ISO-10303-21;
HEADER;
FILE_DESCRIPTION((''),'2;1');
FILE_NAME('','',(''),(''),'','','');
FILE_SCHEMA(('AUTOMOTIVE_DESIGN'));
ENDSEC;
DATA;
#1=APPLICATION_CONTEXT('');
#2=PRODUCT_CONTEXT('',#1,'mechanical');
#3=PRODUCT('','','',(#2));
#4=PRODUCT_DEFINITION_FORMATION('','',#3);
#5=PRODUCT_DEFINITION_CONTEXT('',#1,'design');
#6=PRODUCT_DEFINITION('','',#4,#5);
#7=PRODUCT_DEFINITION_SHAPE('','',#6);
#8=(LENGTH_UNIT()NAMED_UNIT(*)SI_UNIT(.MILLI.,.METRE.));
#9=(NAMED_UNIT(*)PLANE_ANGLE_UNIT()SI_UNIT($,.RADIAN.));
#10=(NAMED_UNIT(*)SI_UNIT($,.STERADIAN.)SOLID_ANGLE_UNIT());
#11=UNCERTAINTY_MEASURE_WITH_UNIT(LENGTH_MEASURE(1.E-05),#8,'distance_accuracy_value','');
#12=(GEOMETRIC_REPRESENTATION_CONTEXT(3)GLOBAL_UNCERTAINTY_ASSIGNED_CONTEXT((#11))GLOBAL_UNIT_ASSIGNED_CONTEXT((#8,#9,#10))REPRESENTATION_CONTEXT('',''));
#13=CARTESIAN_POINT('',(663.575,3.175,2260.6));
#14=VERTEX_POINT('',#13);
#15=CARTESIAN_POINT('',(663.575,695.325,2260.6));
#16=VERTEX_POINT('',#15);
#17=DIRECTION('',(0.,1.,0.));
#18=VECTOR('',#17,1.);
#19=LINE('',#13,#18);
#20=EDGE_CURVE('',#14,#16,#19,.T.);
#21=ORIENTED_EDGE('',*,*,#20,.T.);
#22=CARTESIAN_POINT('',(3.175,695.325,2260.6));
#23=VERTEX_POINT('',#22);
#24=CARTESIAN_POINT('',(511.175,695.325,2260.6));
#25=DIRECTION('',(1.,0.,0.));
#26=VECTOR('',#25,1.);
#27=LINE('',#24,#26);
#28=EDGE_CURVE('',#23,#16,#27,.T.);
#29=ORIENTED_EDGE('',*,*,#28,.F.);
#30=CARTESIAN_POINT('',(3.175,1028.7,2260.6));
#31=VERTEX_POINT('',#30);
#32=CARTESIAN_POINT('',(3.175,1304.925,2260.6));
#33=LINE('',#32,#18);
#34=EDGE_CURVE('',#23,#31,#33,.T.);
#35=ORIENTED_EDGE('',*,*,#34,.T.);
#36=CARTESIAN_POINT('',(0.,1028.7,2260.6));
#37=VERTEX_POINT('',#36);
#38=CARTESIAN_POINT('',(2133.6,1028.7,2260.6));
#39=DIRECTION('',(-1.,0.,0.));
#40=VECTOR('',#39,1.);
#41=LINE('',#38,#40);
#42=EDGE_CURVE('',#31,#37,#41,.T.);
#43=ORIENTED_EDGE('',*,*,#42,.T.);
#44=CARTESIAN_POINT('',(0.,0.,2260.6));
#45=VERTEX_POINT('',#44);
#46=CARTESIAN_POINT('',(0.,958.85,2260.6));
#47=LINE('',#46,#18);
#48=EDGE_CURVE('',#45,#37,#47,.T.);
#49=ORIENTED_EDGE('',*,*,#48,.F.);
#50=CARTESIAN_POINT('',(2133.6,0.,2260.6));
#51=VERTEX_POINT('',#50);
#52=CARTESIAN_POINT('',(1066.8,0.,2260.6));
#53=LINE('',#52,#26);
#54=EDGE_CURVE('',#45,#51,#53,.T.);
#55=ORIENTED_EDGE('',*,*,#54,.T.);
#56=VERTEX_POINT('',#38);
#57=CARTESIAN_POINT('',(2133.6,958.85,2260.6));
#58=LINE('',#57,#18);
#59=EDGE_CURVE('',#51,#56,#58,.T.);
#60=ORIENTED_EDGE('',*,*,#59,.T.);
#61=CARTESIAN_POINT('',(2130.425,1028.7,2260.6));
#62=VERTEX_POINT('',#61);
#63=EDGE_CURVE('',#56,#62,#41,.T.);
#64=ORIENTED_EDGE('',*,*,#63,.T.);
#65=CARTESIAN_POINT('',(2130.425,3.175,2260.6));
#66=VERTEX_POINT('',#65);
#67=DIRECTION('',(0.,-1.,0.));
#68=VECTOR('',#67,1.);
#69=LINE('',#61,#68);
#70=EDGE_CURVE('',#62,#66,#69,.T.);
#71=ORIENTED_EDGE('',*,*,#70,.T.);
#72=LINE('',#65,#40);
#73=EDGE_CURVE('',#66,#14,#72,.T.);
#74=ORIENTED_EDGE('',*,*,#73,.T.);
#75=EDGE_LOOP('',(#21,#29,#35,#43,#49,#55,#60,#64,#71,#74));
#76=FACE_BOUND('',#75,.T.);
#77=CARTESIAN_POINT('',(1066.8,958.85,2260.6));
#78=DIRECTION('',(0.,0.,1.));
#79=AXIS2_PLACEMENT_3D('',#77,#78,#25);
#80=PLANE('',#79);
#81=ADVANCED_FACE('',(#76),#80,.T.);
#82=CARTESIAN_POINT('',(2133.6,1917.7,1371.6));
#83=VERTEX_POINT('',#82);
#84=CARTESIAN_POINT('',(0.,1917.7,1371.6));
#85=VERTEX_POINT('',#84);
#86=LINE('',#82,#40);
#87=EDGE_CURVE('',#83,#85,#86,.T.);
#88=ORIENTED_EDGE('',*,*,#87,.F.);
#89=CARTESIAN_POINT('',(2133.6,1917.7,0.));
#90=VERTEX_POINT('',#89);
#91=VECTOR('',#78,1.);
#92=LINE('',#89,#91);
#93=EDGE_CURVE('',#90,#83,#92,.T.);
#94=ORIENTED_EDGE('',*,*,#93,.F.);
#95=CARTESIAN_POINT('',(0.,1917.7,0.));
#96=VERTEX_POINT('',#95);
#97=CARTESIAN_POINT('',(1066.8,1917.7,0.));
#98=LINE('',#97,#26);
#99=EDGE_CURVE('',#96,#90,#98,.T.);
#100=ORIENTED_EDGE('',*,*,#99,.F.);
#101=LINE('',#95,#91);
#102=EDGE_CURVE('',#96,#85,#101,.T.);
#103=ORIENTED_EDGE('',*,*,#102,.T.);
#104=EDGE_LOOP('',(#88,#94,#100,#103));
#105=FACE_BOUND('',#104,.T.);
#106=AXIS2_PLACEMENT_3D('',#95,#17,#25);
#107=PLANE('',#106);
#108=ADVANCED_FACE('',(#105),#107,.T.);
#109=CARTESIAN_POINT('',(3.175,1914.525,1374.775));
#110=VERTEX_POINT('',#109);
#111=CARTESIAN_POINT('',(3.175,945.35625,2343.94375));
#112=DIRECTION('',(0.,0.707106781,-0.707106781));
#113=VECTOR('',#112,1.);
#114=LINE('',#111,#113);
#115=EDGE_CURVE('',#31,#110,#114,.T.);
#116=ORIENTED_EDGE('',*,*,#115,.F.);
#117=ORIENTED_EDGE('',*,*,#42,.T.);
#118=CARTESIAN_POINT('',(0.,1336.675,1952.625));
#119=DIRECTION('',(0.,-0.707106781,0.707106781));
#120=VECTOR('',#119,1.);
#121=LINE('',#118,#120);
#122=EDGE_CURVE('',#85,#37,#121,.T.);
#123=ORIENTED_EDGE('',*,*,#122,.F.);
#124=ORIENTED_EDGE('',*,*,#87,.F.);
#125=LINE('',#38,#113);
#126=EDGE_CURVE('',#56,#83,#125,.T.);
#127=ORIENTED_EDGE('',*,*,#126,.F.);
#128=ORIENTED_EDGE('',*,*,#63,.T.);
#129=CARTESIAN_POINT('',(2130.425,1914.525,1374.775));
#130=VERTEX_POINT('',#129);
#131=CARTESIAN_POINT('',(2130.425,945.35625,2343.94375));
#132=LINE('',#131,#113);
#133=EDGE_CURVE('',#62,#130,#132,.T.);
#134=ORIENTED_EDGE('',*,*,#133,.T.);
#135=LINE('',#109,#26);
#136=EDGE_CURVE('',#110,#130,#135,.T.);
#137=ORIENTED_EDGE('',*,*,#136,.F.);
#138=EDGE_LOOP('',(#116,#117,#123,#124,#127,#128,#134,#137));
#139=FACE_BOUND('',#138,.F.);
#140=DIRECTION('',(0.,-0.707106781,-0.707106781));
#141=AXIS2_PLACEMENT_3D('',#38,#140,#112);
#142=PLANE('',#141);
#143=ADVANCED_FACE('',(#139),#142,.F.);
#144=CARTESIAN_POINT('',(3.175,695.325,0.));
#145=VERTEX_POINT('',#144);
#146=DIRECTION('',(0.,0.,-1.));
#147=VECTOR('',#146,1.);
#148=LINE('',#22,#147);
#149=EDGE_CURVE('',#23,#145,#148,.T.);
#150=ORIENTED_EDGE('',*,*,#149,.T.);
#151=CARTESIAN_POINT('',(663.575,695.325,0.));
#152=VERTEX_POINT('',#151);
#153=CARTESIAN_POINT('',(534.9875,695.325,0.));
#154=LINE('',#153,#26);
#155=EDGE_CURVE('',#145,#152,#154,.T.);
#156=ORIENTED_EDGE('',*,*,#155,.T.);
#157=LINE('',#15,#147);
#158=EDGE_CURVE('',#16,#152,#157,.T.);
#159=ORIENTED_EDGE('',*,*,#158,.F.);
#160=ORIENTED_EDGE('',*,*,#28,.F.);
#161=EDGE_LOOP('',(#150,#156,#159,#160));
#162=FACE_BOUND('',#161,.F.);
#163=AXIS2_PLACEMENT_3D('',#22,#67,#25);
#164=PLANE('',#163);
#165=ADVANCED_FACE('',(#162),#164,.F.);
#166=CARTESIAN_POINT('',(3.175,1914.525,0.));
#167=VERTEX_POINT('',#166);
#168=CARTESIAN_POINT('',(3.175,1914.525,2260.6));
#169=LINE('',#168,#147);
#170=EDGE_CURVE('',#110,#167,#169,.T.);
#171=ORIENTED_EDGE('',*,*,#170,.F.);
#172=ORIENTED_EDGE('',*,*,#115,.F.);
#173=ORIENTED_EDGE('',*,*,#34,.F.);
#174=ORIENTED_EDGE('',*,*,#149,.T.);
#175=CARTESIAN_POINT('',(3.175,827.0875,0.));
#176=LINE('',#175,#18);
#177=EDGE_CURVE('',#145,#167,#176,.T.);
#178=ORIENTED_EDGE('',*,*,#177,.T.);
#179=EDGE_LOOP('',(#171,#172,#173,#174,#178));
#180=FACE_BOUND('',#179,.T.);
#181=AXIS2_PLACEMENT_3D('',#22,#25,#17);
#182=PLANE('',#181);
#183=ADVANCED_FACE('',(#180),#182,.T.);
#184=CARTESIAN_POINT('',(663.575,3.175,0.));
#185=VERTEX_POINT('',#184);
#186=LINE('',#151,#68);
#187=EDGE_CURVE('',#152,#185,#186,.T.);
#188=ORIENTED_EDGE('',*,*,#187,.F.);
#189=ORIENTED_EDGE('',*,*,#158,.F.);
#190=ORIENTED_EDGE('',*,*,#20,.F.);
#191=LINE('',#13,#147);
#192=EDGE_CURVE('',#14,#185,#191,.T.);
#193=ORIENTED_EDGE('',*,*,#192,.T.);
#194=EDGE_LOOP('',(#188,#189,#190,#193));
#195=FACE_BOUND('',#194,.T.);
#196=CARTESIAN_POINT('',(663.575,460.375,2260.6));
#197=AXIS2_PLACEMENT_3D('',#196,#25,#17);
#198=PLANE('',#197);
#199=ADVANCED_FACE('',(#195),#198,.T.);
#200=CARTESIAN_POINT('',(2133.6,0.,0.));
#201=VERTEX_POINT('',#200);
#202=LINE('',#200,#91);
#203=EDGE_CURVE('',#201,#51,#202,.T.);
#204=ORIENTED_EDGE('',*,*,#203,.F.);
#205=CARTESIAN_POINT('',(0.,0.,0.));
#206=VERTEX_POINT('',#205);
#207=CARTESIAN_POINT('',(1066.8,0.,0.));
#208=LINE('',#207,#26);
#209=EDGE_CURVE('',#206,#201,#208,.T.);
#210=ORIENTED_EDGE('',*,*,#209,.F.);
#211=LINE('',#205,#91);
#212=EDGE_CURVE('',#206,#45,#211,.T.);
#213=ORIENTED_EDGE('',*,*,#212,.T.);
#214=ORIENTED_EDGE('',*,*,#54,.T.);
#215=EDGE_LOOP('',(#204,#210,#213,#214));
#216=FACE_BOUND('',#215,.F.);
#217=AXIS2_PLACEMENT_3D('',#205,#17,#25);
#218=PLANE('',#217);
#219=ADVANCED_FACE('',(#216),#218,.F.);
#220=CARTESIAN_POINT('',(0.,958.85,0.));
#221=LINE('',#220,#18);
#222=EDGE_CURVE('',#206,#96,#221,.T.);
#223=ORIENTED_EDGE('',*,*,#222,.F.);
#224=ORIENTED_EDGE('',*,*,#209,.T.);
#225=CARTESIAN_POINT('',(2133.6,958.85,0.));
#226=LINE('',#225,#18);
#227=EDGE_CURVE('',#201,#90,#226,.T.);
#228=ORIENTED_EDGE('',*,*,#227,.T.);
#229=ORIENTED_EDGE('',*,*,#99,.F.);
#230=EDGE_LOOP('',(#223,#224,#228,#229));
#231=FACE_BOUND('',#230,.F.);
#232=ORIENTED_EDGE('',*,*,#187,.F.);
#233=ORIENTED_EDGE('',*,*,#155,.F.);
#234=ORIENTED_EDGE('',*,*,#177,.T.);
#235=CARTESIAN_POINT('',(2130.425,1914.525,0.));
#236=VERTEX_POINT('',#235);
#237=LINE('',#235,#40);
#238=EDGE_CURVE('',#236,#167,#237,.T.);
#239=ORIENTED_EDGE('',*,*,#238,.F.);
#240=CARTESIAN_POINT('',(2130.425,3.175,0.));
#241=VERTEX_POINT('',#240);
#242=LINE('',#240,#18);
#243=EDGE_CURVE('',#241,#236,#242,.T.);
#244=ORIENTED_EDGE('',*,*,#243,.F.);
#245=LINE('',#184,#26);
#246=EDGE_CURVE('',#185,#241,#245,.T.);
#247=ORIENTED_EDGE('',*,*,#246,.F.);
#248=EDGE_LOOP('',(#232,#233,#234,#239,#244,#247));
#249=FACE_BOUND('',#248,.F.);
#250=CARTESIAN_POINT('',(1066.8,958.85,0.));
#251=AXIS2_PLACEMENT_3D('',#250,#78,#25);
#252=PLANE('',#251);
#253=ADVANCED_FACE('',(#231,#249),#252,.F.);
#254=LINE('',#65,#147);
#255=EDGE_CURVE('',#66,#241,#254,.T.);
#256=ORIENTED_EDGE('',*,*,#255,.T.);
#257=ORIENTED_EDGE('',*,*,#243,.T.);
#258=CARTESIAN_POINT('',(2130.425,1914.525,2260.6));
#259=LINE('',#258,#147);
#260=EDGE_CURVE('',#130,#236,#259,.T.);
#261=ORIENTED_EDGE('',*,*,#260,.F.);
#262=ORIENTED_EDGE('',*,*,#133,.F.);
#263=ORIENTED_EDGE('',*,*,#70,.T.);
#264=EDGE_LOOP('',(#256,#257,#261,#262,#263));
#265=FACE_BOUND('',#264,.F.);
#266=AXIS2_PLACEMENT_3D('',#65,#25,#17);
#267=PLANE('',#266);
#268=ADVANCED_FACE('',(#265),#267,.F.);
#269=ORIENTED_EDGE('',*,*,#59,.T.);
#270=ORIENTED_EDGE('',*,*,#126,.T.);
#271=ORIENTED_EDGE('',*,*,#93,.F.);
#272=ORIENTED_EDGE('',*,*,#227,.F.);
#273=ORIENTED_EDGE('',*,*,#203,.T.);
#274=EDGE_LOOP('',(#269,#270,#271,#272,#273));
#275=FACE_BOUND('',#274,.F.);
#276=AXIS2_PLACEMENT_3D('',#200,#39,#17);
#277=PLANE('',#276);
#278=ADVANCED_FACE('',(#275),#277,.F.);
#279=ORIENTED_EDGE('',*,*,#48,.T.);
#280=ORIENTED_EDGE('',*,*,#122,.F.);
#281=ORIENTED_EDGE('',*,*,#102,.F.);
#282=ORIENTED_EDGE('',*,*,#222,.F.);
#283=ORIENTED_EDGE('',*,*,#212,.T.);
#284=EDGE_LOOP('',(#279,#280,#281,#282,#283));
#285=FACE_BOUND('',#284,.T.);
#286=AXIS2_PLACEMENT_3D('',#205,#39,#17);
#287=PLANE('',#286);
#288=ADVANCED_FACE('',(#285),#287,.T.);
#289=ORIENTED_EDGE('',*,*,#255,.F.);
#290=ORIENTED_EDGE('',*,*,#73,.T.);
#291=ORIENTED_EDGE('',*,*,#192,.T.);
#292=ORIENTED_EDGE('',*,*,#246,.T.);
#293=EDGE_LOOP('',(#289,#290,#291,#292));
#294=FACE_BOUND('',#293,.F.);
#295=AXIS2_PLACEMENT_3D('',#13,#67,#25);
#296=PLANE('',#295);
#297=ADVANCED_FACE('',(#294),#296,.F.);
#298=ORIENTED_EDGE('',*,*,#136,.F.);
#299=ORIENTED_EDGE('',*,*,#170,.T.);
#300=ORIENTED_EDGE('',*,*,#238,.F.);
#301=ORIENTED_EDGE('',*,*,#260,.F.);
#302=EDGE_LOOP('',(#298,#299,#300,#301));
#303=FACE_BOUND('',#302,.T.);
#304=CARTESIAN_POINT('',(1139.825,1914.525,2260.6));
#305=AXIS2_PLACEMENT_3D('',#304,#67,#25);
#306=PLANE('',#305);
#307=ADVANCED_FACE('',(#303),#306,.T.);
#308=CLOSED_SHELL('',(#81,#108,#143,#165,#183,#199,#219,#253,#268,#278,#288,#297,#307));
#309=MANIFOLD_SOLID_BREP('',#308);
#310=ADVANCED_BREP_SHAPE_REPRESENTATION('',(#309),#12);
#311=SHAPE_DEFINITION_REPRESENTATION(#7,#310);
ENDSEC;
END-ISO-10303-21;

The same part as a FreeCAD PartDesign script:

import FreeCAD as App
import Part
import Sketcher
Q = App.Units.Quantity

doc = App.newDocument("Part")
body = doc.addObject("PartDesign::Body", "Body")

# Sketch on XY plane
sketch1 = body.newObject("Sketcher::SketchObject", "Sketch")
sketch1.AttachmentSupport = (doc.getObject("XY_Plane"), [""])
sketch1.MapMode = "FlatFace"
sketch1.addGeometry(Part.LineSegment(App.Vector(0, 1918, 0), App.Vector(0, 0, 0)), False)
sketch1.addGeometry(Part.LineSegment(App.Vector(0, 0, 0), App.Vector(2134, 0, 0)), False)
sketch1.addGeometry(Part.LineSegment(App.Vector(2134, 0, 0), App.Vector(2134, 1918, 0)), False)
sketch1.addGeometry(Part.LineSegment(App.Vector(2134, 1918, 0), App.Vector(0, 1918, 0)), False)
sketch1.addConstraint(Sketcher.Constraint("Coincident", 0, 2, 1, 1))
sketch1.addConstraint(Sketcher.Constraint("Coincident", 1, 2, 2, 1))
sketch1.addConstraint(Sketcher.Constraint("Coincident", 2, 2, 3, 1))
sketch1.addConstraint(Sketcher.Constraint("Coincident", 3, 2, 0, 1))
sketch1.addConstraint(Sketcher.Constraint("Vertical", 0))
sketch1.addConstraint(Sketcher.Constraint("Horizontal", 1))
sketch1.addConstraint(Sketcher.Constraint("Vertical", 2))
sketch1.addConstraint(Sketcher.Constraint("Horizontal", 3))
sketch1.addConstraint(Sketcher.Constraint("Coincident", 0, 2, -1, 1))
sketch1.addConstraint(Sketcher.Constraint("DistanceX", 1, 1, 1, 2, Q("84 in")))
sketch1.addConstraint(Sketcher.Constraint("DistanceY", 0, 2, 0, 1, Q("75.5 in")))
pad1 = body.newObject("PartDesign::Pad", "Pad")
pad1.Profile = sketch1
pad1.Length = Q("89 in")

# Sketch on XY plane
sketch2 = body.newObject("Sketcher::SketchObject", "Sketch001")
sketch2.AttachmentSupport = (doc.getObject("XY_Plane"), [""])
sketch2.MapMode = "FlatFace"
sketch2.AttachmentOffset = App.Placement(App.Vector(0, 0, 89 * 25.4), App.Rotation())
sketch2.addGeometry(Part.LineSegment(App.Vector(1140, 1915, 0), App.Vector(1140, 695, 0)), False)
sketch2.addGeometry(Part.LineSegment(App.Vector(1140, 695, 0), App.Vector(2130, 695, 0)), False)
sketch2.addGeometry(Part.LineSegment(App.Vector(2130, 695, 0), App.Vector(2130, 1915, 0)), False)
sketch2.addGeometry(Part.LineSegment(App.Vector(2130, 1915, 0), App.Vector(1140, 1915, 0)), False)
sketch2.addGeometry(Part.LineSegment(App.Vector(3, 1915, 0), App.Vector(3, 695, 0)), False)
sketch2.addGeometry(Part.LineSegment(App.Vector(3, 695, 0), App.Vector(1019, 695, 0)), False)
sketch2.addGeometry(Part.LineSegment(App.Vector(1019, 695, 0), App.Vector(1019, 1915, 0)), False)
sketch2.addGeometry(Part.LineSegment(App.Vector(1019, 1915, 0), App.Vector(3, 1915, 0)), False)
sketch2.addConstraint(Sketcher.Constraint("Coincident", 0, 2, 1, 1))
sketch2.addConstraint(Sketcher.Constraint("Coincident", 1, 2, 2, 1))
sketch2.addConstraint(Sketcher.Constraint("Coincident", 2, 2, 3, 1))
sketch2.addConstraint(Sketcher.Constraint("Coincident", 3, 2, 0, 1))
sketch2.addConstraint(Sketcher.Constraint("Coincident", 4, 2, 5, 1))
sketch2.addConstraint(Sketcher.Constraint("Coincident", 5, 2, 6, 1))
sketch2.addConstraint(Sketcher.Constraint("Coincident", 6, 2, 7, 1))
sketch2.addConstraint(Sketcher.Constraint("Coincident", 7, 2, 4, 1))
sketch2.addConstraint(Sketcher.Constraint("Vertical", 0))
sketch2.addConstraint(Sketcher.Constraint("Horizontal", 1))
sketch2.addConstraint(Sketcher.Constraint("Vertical", 2))
sketch2.addConstraint(Sketcher.Constraint("Horizontal", 3))
sketch2.addConstraint(Sketcher.Constraint("Vertical", 4))
sketch2.addConstraint(Sketcher.Constraint("Horizontal", 5))
sketch2.addConstraint(Sketcher.Constraint("Vertical", 6))
sketch2.addConstraint(Sketcher.Constraint("Horizontal", 7))
sketch2.addConstraint(Sketcher.Constraint("Horizontal", 1, 2, 4, 2))
sketch2.addConstraint(Sketcher.Constraint("Horizontal", 3, 2, 6, 2))
sketch2.addConstraint(Sketcher.Constraint("DistanceX", 1, 1, 1, 2, Q("39 in")))
sketch2.addConstraint(Sketcher.Constraint("DistanceX", 5, 1, 5, 2, Q("40 in")))
sketch2.addConstraint(Sketcher.Constraint("DistanceY", 0, 2, 0, 1, Q("48 in")))
sketch2.addConstraint(Sketcher.Constraint("DistanceX", 4, 2, 0, 2, Q("44.75 in")))
sketch2.addConstraint(Sketcher.Constraint("DistanceX", -1, 1, 0, 2, Q("44.875 in")))
sketch2.addConstraint(Sketcher.Constraint("DistanceY", -1, 1, 0, 2, Q("27.375 in")))
pocket1 = body.newObject("PartDesign::Pocket", "Pocket")
pocket1.Profile = sketch2
pocket1.Type = "ThroughAll"

# Sketch on XY plane
sketch3 = body.newObject("Sketcher::SketchObject", "Sketch002")
sketch3.AttachmentSupport = (doc.getObject("XY_Plane"), [""])
sketch3.MapMode = "FlatFace"
sketch3.AttachmentOffset = App.Placement(App.Vector(0, 0, 89 * 25.4), App.Rotation())
sketch3.addGeometry(Part.LineSegment(App.Vector(664, 460, 0), App.Vector(664, 3, 0)), False)
sketch3.addGeometry(Part.LineSegment(App.Vector(664, 3, 0), App.Vector(2010, 3, 0)), False)
sketch3.addGeometry(Part.LineSegment(App.Vector(2010, 3, 0), App.Vector(2010, 460, 0)), False)
sketch3.addGeometry(Part.LineSegment(App.Vector(2010, 460, 0), App.Vector(664, 460, 0)), False)
sketch3.addConstraint(Sketcher.Constraint("Coincident", 0, 2, 1, 1))
sketch3.addConstraint(Sketcher.Constraint("Coincident", 1, 2, 2, 1))
sketch3.addConstraint(Sketcher.Constraint("Coincident", 2, 2, 3, 1))
sketch3.addConstraint(Sketcher.Constraint("Coincident", 3, 2, 0, 1))
sketch3.addConstraint(Sketcher.Constraint("Vertical", 0))
sketch3.addConstraint(Sketcher.Constraint("Horizontal", 1))
sketch3.addConstraint(Sketcher.Constraint("Vertical", 2))
sketch3.addConstraint(Sketcher.Constraint("Horizontal", 3))
sketch3.addConstraint(Sketcher.Constraint("DistanceX", 1, 1, 1, 2, Q("53 in")))
sketch3.addConstraint(Sketcher.Constraint("DistanceY", 0, 2, 0, 1, Q("18 in")))
sketch3.addConstraint(Sketcher.Constraint("DistanceX", -1, 1, 0, 2, Q("26.125 in")))
sketch3.addConstraint(Sketcher.Constraint("DistanceY", -1, 1, 0, 2, Q("0.125 in")))
pocket2 = body.newObject("PartDesign::Pocket", "Pocket001")
pocket2.Profile = sketch3
pocket2.Type = "ThroughAll"

# Sketch on YZ plane
sketch4 = body.newObject("Sketcher::SketchObject", "Sketch003")
sketch4.AttachmentSupport = (doc.getObject("YZ_Plane"), [""])
sketch4.MapMode = "FlatFace"
sketch4.AttachmentOffset = App.Placement(App.Vector(0, 0, 84 * 25.4), App.Rotation())
sketch4.addGeometry(Part.LineSegment(App.Vector(1918, 1372, 0), App.Vector(1918, 2261, 0)), False)
sketch4.addGeometry(Part.LineSegment(App.Vector(1918, 2261, 0), App.Vector(1029, 2261, 0)), False)
sketch4.addGeometry(Part.LineSegment(App.Vector(1029, 2261, 0), App.Vector(1918, 1372, 0)), False)
sketch4.addConstraint(Sketcher.Constraint("Coincident", 0, 2, 1, 1))
sketch4.addConstraint(Sketcher.Constraint("Coincident", 1, 2, 2, 1))
sketch4.addConstraint(Sketcher.Constraint("Coincident", 2, 2, 0, 1))
sketch4.addConstraint(Sketcher.Constraint("Vertical", 0))
sketch4.addConstraint(Sketcher.Constraint("Horizontal", 1))
sketch4.addConstraint(Sketcher.Constraint("Equal", 1, 0))
sketch4.addConstraint(Sketcher.Constraint("DistanceX", 1, 2, 1, 1, Q("35 in")))
sketch4.addConstraint(Sketcher.Constraint("DistanceY", -1, 1, 0, 2, Q("89 in")))
sketch4.addConstraint(Sketcher.Constraint("DistanceX", -1, 1, 0, 2, Q("75.5 in")))
pocket3 = body.newObject("PartDesign::Pocket", "Pocket002")
pocket3.Profile = sketch4
pocket3.Type = "ThroughAll"

# Sketch on XY plane
sketch5 = body.newObject("Sketcher::SketchObject", "Sketch004")
sketch5.AttachmentSupport = (doc.getObject("XY_Plane"), [""])
sketch5.MapMode = "FlatFace"
sketch5.AttachmentOffset = App.Placement(App.Vector(0, 0, 89 * 25.4), App.Rotation())
sketch5.addGeometry(Part.LineSegment(App.Vector(664, 695, 0), App.Vector(664, 460, 0)), False)
sketch5.addGeometry(Part.LineSegment(App.Vector(664, 460, 0), App.Vector(2130, 460, 0)), False)
sketch5.addGeometry(Part.LineSegment(App.Vector(2130, 460, 0), App.Vector(2130, 695, 0)), False)
sketch5.addGeometry(Part.LineSegment(App.Vector(2130, 695, 0), App.Vector(664, 695, 0)), False)
sketch5.addConstraint(Sketcher.Constraint("Coincident", 0, 2, 1, 1))
sketch5.addConstraint(Sketcher.Constraint("Coincident", 1, 2, 2, 1))
sketch5.addConstraint(Sketcher.Constraint("Coincident", 2, 2, 3, 1))
sketch5.addConstraint(Sketcher.Constraint("Coincident", 3, 2, 0, 1))
sketch5.addConstraint(Sketcher.Constraint("Vertical", 0))
sketch5.addConstraint(Sketcher.Constraint("Horizontal", 1))
sketch5.addConstraint(Sketcher.Constraint("Vertical", 2))
sketch5.addConstraint(Sketcher.Constraint("Horizontal", 3))
sketch5.addConstraint(Sketcher.Constraint("DistanceX", 1, 1, 1, 2, Q("57.75 in")))
sketch5.addConstraint(Sketcher.Constraint("DistanceY", 0, 2, 0, 1, Q("9.25 in")))
sketch5.addConstraint(Sketcher.Constraint("DistanceX", -1, 1, 0, 2, Q("26.125 in")))
sketch5.addConstraint(Sketcher.Constraint("DistanceY", -1, 1, 0, 2, Q("18.125 in")))
pocket4 = body.newObject("PartDesign::Pocket", "Pocket003")
pocket4.Profile = sketch5
pocket4.Type = "ThroughAll"

# Sketch on XY plane
sketch6 = body.newObject("Sketcher::SketchObject", "Sketch005")
sketch6.AttachmentSupport = (doc.getObject("XY_Plane"), [""])
sketch6.MapMode = "FlatFace"
sketch6.AttachmentOffset = App.Placement(App.Vector(0, 0, 89 * 25.4), App.Rotation())
sketch6.addGeometry(Part.LineSegment(App.Vector(1019, 1915, 0), App.Vector(1019, 695, 0)), False)
sketch6.addGeometry(Part.LineSegment(App.Vector(1019, 695, 0), App.Vector(1140, 695, 0)), False)
sketch6.addGeometry(Part.LineSegment(App.Vector(1140, 695, 0), App.Vector(1140, 1915, 0)), False)
sketch6.addGeometry(Part.LineSegment(App.Vector(1140, 1915, 0), App.Vector(1019, 1915, 0)), False)
sketch6.addGeometry(Part.LineSegment(App.Vector(2010, 460, 0), App.Vector(2010, 3, 0)), False)
sketch6.addGeometry(Part.LineSegment(App.Vector(2010, 3, 0), App.Vector(2130, 3, 0)), False)
sketch6.addGeometry(Part.LineSegment(App.Vector(2130, 3, 0), App.Vector(2130, 460, 0)), False)
sketch6.addGeometry(Part.LineSegment(App.Vector(2130, 460, 0), App.Vector(2010, 460, 0)), False)
sketch6.addConstraint(Sketcher.Constraint("Coincident", 0, 2, 1, 1))
sketch6.addConstraint(Sketcher.Constraint("Coincident", 1, 2, 2, 1))
sketch6.addConstraint(Sketcher.Constraint("Coincident", 2, 2, 3, 1))
sketch6.addConstraint(Sketcher.Constraint("Coincident", 3, 2, 0, 1))
sketch6.addConstraint(Sketcher.Constraint("Coincident", 4, 2, 5, 1))
sketch6.addConstraint(Sketcher.Constraint("Coincident", 5, 2, 6, 1))
sketch6.addConstraint(Sketcher.Constraint("Coincident", 6, 2, 7, 1))
sketch6.addConstraint(Sketcher.Constraint("Coincident", 7, 2, 4, 1))
sketch6.addConstraint(Sketcher.Constraint("Vertical", 0))
sketch6.addConstraint(Sketcher.Constraint("Horizontal", 1))
sketch6.addConstraint(Sketcher.Constraint("Vertical", 2))
sketch6.addConstraint(Sketcher.Constraint("Horizontal", 3))
sketch6.addConstraint(Sketcher.Constraint("Vertical", 4))
sketch6.addConstraint(Sketcher.Constraint("Horizontal", 5))
sketch6.addConstraint(Sketcher.Constraint("Vertical", 6))
sketch6.addConstraint(Sketcher.Constraint("Horizontal", 7))
sketch6.addConstraint(Sketcher.Constraint("Equal", 3, 5))
sketch6.addConstraint(Sketcher.Constraint("DistanceY", 0, 2, 0, 1, Q("48 in")))
sketch6.addConstraint(Sketcher.Constraint("DistanceY", 4, 2, 4, 1, Q("18 in")))
sketch6.addConstraint(Sketcher.Constraint("DistanceX", 0, 2, 4, 2, Q("39 in")))
sketch6.addConstraint(Sketcher.Constraint("DistanceX", 1, 1, 1, 2, Q("4.75 in")))
sketch6.addConstraint(Sketcher.Constraint("DistanceY", 4, 2, 1, 2, Q("27.25 in")))
sketch6.addConstraint(Sketcher.Constraint("DistanceX", -1, 1, 0, 2, Q("40.125 in")))
sketch6.addConstraint(Sketcher.Constraint("DistanceY", -1, 1, 0, 2, Q("27.375 in")))
pocket5 = body.newObject("PartDesign::Pocket", "Pocket004")
pocket5.Profile = sketch6
pocket5.Type = "ThroughAll"

doc.recompute()
